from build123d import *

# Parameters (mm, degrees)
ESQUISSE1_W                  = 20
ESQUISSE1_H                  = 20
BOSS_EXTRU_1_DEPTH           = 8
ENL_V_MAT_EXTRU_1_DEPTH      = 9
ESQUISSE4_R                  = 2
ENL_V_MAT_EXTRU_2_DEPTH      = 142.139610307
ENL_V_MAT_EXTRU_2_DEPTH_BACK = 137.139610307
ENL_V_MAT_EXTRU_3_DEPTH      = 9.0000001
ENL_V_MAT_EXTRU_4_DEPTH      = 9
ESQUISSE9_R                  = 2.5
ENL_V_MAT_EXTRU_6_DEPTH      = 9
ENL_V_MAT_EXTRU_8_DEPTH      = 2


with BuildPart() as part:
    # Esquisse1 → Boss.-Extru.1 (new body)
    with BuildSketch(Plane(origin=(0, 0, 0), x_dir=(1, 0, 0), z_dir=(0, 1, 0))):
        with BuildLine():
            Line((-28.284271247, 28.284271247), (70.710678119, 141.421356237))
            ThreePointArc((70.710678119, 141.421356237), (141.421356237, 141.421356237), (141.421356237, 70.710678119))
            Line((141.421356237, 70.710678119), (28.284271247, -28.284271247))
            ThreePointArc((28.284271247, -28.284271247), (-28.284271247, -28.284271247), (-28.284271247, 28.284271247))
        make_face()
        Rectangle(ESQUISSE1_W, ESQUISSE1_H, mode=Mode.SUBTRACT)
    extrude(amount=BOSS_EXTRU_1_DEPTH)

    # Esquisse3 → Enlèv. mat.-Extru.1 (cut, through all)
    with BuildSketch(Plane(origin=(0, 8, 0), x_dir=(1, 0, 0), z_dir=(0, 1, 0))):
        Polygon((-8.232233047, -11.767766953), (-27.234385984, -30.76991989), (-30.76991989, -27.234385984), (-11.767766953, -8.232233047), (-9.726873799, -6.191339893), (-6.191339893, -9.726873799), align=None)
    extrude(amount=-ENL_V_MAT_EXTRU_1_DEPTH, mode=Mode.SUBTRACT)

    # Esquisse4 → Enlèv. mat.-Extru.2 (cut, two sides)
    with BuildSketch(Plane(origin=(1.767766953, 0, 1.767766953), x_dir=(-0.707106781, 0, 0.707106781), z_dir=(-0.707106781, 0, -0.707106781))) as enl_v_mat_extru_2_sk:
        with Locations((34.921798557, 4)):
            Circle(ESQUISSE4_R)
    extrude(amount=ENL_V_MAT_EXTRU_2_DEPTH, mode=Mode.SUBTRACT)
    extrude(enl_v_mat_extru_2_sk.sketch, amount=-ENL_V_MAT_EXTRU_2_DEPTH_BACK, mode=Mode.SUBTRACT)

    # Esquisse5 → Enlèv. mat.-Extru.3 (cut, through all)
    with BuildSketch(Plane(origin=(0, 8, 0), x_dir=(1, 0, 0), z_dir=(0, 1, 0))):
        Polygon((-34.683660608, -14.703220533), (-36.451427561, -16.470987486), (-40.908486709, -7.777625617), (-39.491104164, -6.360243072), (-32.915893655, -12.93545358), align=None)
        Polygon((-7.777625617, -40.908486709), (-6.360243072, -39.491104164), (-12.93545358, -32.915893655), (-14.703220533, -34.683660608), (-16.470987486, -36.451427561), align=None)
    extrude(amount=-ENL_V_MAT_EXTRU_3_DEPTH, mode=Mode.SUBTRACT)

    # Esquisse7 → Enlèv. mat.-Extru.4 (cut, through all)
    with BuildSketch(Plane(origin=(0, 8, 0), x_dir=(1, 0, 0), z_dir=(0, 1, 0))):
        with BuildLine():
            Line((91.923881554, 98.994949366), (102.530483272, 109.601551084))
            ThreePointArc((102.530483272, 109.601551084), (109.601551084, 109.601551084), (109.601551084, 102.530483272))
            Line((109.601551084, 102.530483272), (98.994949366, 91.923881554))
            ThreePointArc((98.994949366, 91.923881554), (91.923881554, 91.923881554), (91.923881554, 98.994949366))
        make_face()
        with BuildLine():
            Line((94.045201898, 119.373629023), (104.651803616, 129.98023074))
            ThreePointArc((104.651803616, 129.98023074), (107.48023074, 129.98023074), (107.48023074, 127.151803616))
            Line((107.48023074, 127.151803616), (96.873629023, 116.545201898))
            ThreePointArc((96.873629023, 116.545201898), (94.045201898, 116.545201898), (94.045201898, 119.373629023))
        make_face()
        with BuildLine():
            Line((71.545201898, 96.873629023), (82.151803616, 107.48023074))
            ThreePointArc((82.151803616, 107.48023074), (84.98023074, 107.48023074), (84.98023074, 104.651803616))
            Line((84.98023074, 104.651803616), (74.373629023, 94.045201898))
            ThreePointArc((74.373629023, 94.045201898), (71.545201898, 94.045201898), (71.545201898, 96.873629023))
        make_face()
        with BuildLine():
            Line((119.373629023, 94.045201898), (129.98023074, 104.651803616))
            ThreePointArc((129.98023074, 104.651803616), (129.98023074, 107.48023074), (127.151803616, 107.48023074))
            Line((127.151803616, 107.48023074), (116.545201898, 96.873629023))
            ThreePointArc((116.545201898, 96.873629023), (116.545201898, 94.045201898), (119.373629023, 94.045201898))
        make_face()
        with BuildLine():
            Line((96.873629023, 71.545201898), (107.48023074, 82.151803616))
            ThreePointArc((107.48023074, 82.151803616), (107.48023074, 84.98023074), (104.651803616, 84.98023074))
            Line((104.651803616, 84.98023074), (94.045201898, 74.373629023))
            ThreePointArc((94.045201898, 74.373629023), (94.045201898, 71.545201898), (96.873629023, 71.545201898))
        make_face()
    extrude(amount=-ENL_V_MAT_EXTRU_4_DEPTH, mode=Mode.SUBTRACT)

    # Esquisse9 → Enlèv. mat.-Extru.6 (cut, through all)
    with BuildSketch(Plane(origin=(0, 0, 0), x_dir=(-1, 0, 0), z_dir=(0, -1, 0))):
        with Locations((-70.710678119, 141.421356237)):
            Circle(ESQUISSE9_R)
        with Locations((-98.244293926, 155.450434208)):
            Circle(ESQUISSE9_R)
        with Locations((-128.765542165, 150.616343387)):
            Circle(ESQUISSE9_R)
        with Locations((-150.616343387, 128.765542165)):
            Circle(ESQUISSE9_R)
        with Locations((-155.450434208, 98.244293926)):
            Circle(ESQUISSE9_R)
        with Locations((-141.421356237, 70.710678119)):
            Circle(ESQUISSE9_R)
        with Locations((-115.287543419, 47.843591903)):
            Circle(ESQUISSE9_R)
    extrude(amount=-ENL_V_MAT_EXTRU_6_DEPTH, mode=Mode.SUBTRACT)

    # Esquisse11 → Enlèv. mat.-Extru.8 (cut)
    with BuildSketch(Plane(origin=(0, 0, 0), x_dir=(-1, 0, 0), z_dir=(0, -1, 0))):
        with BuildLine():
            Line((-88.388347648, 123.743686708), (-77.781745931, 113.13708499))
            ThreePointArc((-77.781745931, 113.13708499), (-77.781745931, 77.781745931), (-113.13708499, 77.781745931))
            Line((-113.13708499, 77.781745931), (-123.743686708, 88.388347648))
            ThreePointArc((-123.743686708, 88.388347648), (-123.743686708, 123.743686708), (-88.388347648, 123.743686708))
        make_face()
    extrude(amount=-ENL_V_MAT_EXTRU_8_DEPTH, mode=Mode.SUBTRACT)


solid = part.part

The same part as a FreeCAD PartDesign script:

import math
import FreeCAD as App
import Part
import Sketcher
from FreeCAD import Vector
Q = App.Units.Quantity

doc = App.newDocument("Part")
body = doc.addObject("PartDesign::Body", "Body")

sketch1 = doc.addObject("Sketcher::SketchObject", "Sketch")
body.addObject(sketch1)
sketch1.AttachmentSupport = (doc.XZ_Plane, [""])
sketch1.MapMode = "FlatFace"
sketch1.addGeometry([
    Part.LineSegment(Vector(71, -141, 0), Vector(-28, -28, 0)),
    Part.ArcOfCircle(Part.Circle(Vector(0, 0, 0), Vector(0, 0, 1), 40), math.radians(45), math.radians(225)),
    Part.LineSegment(Vector(28, 28, 0), Vector(141, -71, 0)),
    Part.ArcOfCircle(Part.Circle(Vector(106, -106, 0), Vector(0, 0, 1), 50), math.radians(-135), math.radians(45)),
    Part.LineSegment(Vector(-10, 10, 0), Vector(-10, -10, 0)),
    Part.LineSegment(Vector(-10, -10, 0), Vector(10, -10, 0)),
    Part.LineSegment(Vector(10, -10, 0), Vector(10, 10, 0)),
    Part.LineSegment(Vector(10, 10, 0), Vector(-10, 10, 0)),
], False)
sketch1.addConstraint([
    Sketcher.Constraint("Coincident", 0, 2, 1, 2),
    Sketcher.Constraint("Coincident", 1, 1, 2, 1),
    Sketcher.Constraint("Coincident", 2, 2, 3, 2),
    Sketcher.Constraint("Coincident", 3, 1, 0, 1),
    Sketcher.Constraint("Coincident", 4, 2, 5, 1),
    Sketcher.Constraint("Coincident", 5, 2, 6, 1),
    Sketcher.Constraint("Coincident", 6, 2, 7, 1),
    Sketcher.Constraint("Coincident", 7, 2, 4, 1),
    Sketcher.Constraint("Vertical", 4),
    Sketcher.Constraint("Horizontal", 5),
    Sketcher.Constraint("Vertical", 6),
    Sketcher.Constraint("Horizontal", 7),
    Sketcher.Constraint("Coincident", 1, 3, -1, 1),
    Sketcher.Constraint("Symmetric", 4, 2, 6, 2, -1, 1),
    Sketcher.Constraint("Equal", 7, 4),
    Sketcher.Constraint("Equal", 0, 2),
    Sketcher.Constraint("Radius", 1, Q("40 mm")),
    Sketcher.Constraint("Radius", 3, Q("50 mm")),
    Sketcher.Constraint("DistanceX", 5, 1, 5, 2, Q("20 mm")),
    Sketcher.Constraint("DistanceX", 0, 2, -1, 1, Q("28.284271 mm")),
    Sketcher.Constraint("DistanceX", -1, 1, 1, 1, Q("28.284271 mm")),
    Sketcher.Constraint("DistanceY", 2, 2, -1, 1, Q("70.710678 mm")),
    Sketcher.Constraint("DistanceX", -1, 1, 3, 1, Q("70.710678 mm")),
    Sketcher.Constraint("DistanceX", 0, 2, 3, 3, Q("134.350288 mm")),
])
pad1 = doc.addObject("PartDesign::Pad", "Pad")
body.addObject(pad1)
pad1.Profile = sketch1
pad1.Length = 8
pad1.Reversed = True

sketch2 = doc.addObject("Sketcher::SketchObject", "Sketch001")
body.addObject(sketch2)
sketch2.AttachmentSupport = (doc.XZ_Plane, [""])
sketch2.MapMode = "FlatFace"
sketch2.AttachmentOffset = App.Placement(Vector(0, 0, -8), App.Rotation())
sketch2.addGeometry([
    Part.LineSegment(Vector(-27, 31, 0), Vector(-6, 10, 0)),
    Part.LineSegment(Vector(-6, 10, 0), Vector(-10, 6, 0)),
    Part.LineSegment(Vector(-10, 6, 0), Vector(-31, 27, 0)),
    Part.LineSegment(Vector(-31, 27, 0), Vector(-27, 31, 0)),
], False)
sketch2.addConstraint([
    Sketcher.Constraint("Coincident", 0, 2, 1, 1),
    Sketcher.Constraint("Coincident", 1, 2, 2, 1),
    Sketcher.Constraint("Coincident", 2, 2, 3, 1),
    Sketcher.Constraint("Coincident", 3, 2, 0, 1),
    Sketcher.Constraint("Perpendicular", 0, 1),
    Sketcher.Constraint("Perpendicular", 1, 2),
    Sketcher.Constraint("Perpendicular", 2, 3),
    Sketcher.Constraint("Angle", 0, Q("-45 deg")),
    Sketcher.Constraint("Distance", 1, Q("5 mm")),
    Sketcher.Constraint("Distance", 0, Q("29.759361 mm")),
    Sketcher.Constraint("DistanceX", 0, 2, -1, 1, Q("6.19134 mm")),
    Sketcher.Constraint("DistanceY", -1, 1, 1, 2, Q("6.19134 mm")),
])
pocket1 = doc.addObject("PartDesign::Pocket", "Pocket")
body.addObject(pocket1)
pocket1.Profile = sketch2
pocket1.Type = "ThroughAll"
pocket1.Reversed = True

sketch3 = doc.addObject("Sketcher::SketchObject", "Sketch002")
body.addObject(sketch3)
sketch3.Placement = App.Placement(Vector(1.767767, 0, 1.767767), App.Rotation(Vector(-0.707106781, 0, 0.707106781), Vector(0, 0.999999999, 0), Vector(-0.707106781, 0, -0.707106781), "ZXY"))
sketch3.addGeometry(Part.Circle(Vector(34.9, 4, 0), Vector(0, 0, 1), 2), False)
sketch3.addConstraint([
    Sketcher.Constraint("Diameter", 0, Q("4 mm")),
    Sketcher.Constraint("DistanceY", -1, 1, 0, 3, Q("4 mm")),
    Sketcher.Constraint("DistanceX", -1, 1, 0, 3, Q("34.921799 mm")),
])
pocket2 = doc.addObject("PartDesign::Pocket", "Pocket001")
body.addObject(pocket2)
pocket2.Profile = sketch3
pocket2.Type = "ThroughAll"
pocket2.Midplane = True

sketch4 = doc.addObject("Sketcher::SketchObject", "Sketch003")
body.addObject(sketch4)
sketch4.AttachmentSupport = (doc.XZ_Plane, [""])
sketch4.MapMode = "FlatFace"
sketch4.AttachmentOffset = App.Placement(Vector(0, 0, -8), App.Rotation())
sketch4.addGeometry([
    Part.LineSegment(Vector(-36.5, 16.5, 0), Vector(-32.9, 12.9, 0)),
    Part.LineSegment(Vector(-32.9, 12.9, 0), Vector(-39.5, 6.4, 0)),
    Part.LineSegment(Vector(-39.5, 6.4, 0), Vector(-40.9, 7.8, 0)),
    Part.LineSegment(Vector(-40.9, 7.8, 0), Vector(-36.5, 16.5, 0)),
    Part.LineSegment(Vector(-7.8, 40.9, 0), Vector(-6.4, 39.5, 0)),
    Part.LineSegment(Vector(-6.4, 39.5, 0), Vector(-12.9, 32.9, 0)),
    Part.LineSegment(Vector(-12.9, 32.9, 0), Vector(-16.5, 36.5, 0)),
    Part.LineSegment(Vector(-16.5, 36.5, 0), Vector(-7.8, 40.9, 0)),
], False)
sketch4.addConstraint([
    Sketcher.Constraint("Coincident", 0, 2, 1, 1),
    Sketcher.Constraint("Coincident", 1, 2, 2, 1),
    Sketcher.Constraint("Coincident", 2, 2, 3, 1),
    Sketcher.Constraint("Coincident", 3, 2, 0, 1),
    Sketcher.Constraint("Coincident", 4, 2, 5, 1),
    Sketcher.Constraint("Coincident", 5, 2, 6, 1),
    Sketcher.Constraint("Coincident", 6, 2, 7, 1),
    Sketcher.Constraint("Coincident", 7, 2, 4, 1),
    Sketcher.Constraint("Perpendicular", 0, 1),
    Sketcher.Constraint("Perpendicular", 1, 2),
    Sketcher.Constraint("Parallel", 2, 4),
    Sketcher.Constraint("Perpendicular", 4, 5),
    Sketcher.Constraint("Perpendicular", 5, 6),
    Sketcher.Constraint("Equal", 2, 4),
    Sketcher.Constraint("Equal", 1, 5),
    Sketcher.Constraint("Equal", 0, 6),
    Sketcher.Constraint("Angle", 0, Q("-45 deg")),
    Sketcher.Constraint("Distance", 0, Q("5 mm")),
    Sketcher.Constraint("DistanceX", 2, 2, 6, 2, Q("24.437499 mm")),
    Sketcher.Constraint("DistanceY", 2, 2, 6, 2, Q("28.673802 mm")),
    Sketcher.Constraint("DistanceX", 3, 2, 7, 2, Q("28.673802 mm")),
    Sketcher.Constraint("Distance", 1, Q("9.298752 mm")),
    Sketcher.Constraint("DistanceX", 0, 2, -1, 1, Q("32.915894 mm")),
    Sketcher.Constraint("DistanceY", -1, 1, 0, 2, Q("12.935454 mm")),
])
pocket3 = doc.addObject("PartDesign::Pocket", "Pocket002")
body.addObject(pocket3)
pocket3.Profile = sketch4
pocket3.Type = "ThroughAll"
pocket3.Reversed = True

sketch5 = doc.addObject("Sketcher::SketchObject", "Sketch004")
body.addObject(sketch5)
sketch5.AttachmentSupport = (doc.XZ_Plane, [""])
sketch5.MapMode = "FlatFace"
sketch5.AttachmentOffset = App.Placement(Vector(0, 0, -8), App.Rotation())
sketch5.addGeometry([
    Part.LineSegment(Vector(102.5, -109.6, 0), Vector(91.9, -99, 0)),
    Part.ArcOfCircle(Part.Circle(Vector(95.5, -95.5, 0), Vector(0, 0, 1), 5), math.radians(45), math.radians(225)),
    Part.LineSegment(Vector(99, -91.9, 0), Vector(109.6, -102.5, 0)),
    Part.ArcOfCircle(Part.Circle(Vector(106.1, -106.1, 0), Vector(0, 0, 1), 5), math.radians(-135), math.radians(45)),
    Part.LineSegment(Vector(104.7, -130, 0), Vector(94, -119.4, 0)),
    Part.ArcOfCircle(Part.Circle(Vector(95.5, -118, 0), Vector(0, 0, 1), 2), math.radians(45), math.radians(225)),
    Part.LineSegment(Vector(96.9, -116.5, 0), Vector(107.5, -127.2, 0)),
    Part.ArcOfCircle(Part.Circle(Vector(106.1, -128.6, 0), Vector(0, 0, 1), 2), math.radians(-135), math.radians(45)),
    Part.LineSegment(Vector(82.2, -107.5, 0), Vector(71.5, -96.9, 0)),
    Part.ArcOfCircle(Part.Circle(Vector(73, -95.5, 0), Vector(0, 0, 1), 2), math.radians(45), math.radians(225)),
    Part.LineSegment(Vector(74.4, -94, 0), Vector(85, -104.7, 0)),
    Part.ArcOfCircle(Part.Circle(Vector(83.6, -106.1, 0), Vector(0, 0, 1), 2), math.radians(-135), math.radians(45)),
    Part.LineSegment(Vector(119.4, -94, 0), Vector(130, -104.7, 0)),
    Part.ArcOfCircle(Part.Circle(Vector(128.6, -106.1, 0), Vector(0, 0, 1), 2), math.radians(-135), math.radians(45)),
    Part.LineSegment(Vector(127.2, -107.5, 0), Vector(116.5, -96.9, 0)),
    Part.ArcOfCircle(Part.Circle(Vector(118, -95.5, 0), Vector(0, 0, 1), 2), math.radians(45), math.radians(225)),
    Part.LineSegment(Vector(96.9, -71.5, 0), Vector(107.5, -82.2, 0)),
    Part.ArcOfCircle(Part.Circle(Vector(106.1, -83.6, 0), Vector(0, 0, 1), 2), math.radians(-135), math.radians(45)),
    Part.LineSegment(Vector(104.7, -85, 0), Vector(94, -74.4, 0)),
    Part.ArcOfCircle(Part.Circle(Vector(95.5, -73, 0), Vector(0, 0, 1), 2), math.radians(45), math.radians(225)),
], False)
sketch5.addConstraint([
    Sketcher.Constraint("Tangent", 0, 2, 1, 2),
    Sketcher.Constraint("Tangent", 1, 1, 2, 1),
    Sketcher.Constraint("Tangent", 2, 2, 3, 2),
    Sketcher.Constraint("Tangent", 3, 1, 0, 1),
    Sketcher.Constraint("Tangent", 4, 2, 5, 2),
    Sketcher.Constraint("Tangent", 5, 1, 6, 1),
    Sketcher.Constraint("Tangent", 6, 2, 7, 2),
    Sketcher.Constraint("Tangent", 7, 1, 4, 1),
    Sketcher.Constraint("Tangent", 8, 2, 9, 2),
    Sketcher.Constraint("Tangent", 9, 1, 10, 1),
    Sketcher.Constraint("Tangent", 10, 2, 11, 2),
    Sketcher.Constraint("Tangent", 11, 1, 8, 1),
    Sketcher.Constraint("Tangent", 12, 2, 13, 2),
    Sketcher.Constraint("Tangent", 13, 1, 14, 1),
    Sketcher.Constraint("Tangent", 14, 2, 15, 2),
    Sketcher.Constraint("Tangent", 15, 1, 12, 1),
    Sketcher.Constraint("Tangent", 16, 2, 17, 2),
    Sketcher.Constraint("Tangent", 17, 1, 18, 1),
    Sketcher.Constraint("Tangent", 18, 2, 19, 2),
    Sketcher.Constraint("Tangent", 19, 1, 16, 1),
    Sketcher.Constraint("Equal", 1, 3),
    Sketcher.Constraint("Equal", 5, 7),
    Sketcher.Constraint("Equal", 7, 9),
    Sketcher.Constraint("Equal", 9, 11),
    Sketcher.Constraint("Equal", 11, 13),
    Sketcher.Constraint("Equal", 13, 15),
    Sketcher.Constraint("Equal", 15, 17),
    Sketcher.Constraint("Equal", 17, 19),
    Sketcher.Constraint("Parallel", 2, 4),
    Sketcher.Constraint("Parallel", 6, 8),
    Sketcher.Constraint("Parallel", 10, 12),
    Sketcher.Constraint("Parallel", 14, 16),
    Sketcher.Constraint("Horizontal", 1, 3, 9, 3),
    Sketcher.Constraint("Horizontal", 3, 3, 11, 3),
    Sketcher.Constraint("Horizontal", 11, 3, 13, 3),
    Sketcher.Constraint("Horizontal", 9, 3, 15, 3),
    Sketcher.Constraint("Vertical", 1, 3, 5, 3),
    Sketcher.Constraint("Vertical", 3, 3, 7, 3),
    Sketcher.Constraint("Vertical", 7, 3, 17, 3),
    Sketcher.Constraint("Vertical", 5, 3, 19, 3),
    Sketcher.Constraint("Radius", 1, Q("5 mm")),
    Sketcher.Constraint("Radius", 5, Q("2 mm")),
    Sketcher.Constraint("Angle", 0, Q("135 deg")),
    Sketcher.Constraint("Distance", 0, Q("15 mm")),
    Sketcher.Constraint("DistanceX", 11, 3, 13, 3, Q("45 mm")),
    Sketcher.Constraint("DistanceY", 5, 3, 1, 3, Q("22.5 mm")),
    Sketcher.Constraint("DistanceX", 9, 3, 1, 3, Q("22.5 mm")),
    Sketcher.Constraint("DistanceY", 3, 3, 17, 3, Q("22.5 mm")),
    Sketcher.Constraint("DistanceX", -1, 1, 4, 2, Q("94.045202 mm")),
    Sketcher.Constraint("DistanceY", 5, 1, -1, 1, Q("116.545202 mm")),
])
pocket4 = doc.addObject("PartDesign::Pocket", "Pocket003")
body.addObject(pocket4)
pocket4.Profile = sketch5
pocket4.Type = "ThroughAll"
pocket4.Reversed = True

sketch6 = doc.addObject("Sketcher::SketchObject", "Sketch005")
body.addObject(sketch6)
sketch6.AttachmentSupport = (doc.XZ_Plane, [""])
sketch6.MapMode = "FlatFace"
sketch6.addGeometry([
    Part.Circle(Vector(70.7, -141.4, 0), Vector(0, 0, 1), 2.5),
    Part.Circle(Vector(98.2, -155.5, 0), Vector(0, 0, 1), 2.5),
    Part.Circle(Vector(128.8, -150.6, 0), Vector(0, 0, 1), 2.5),
    Part.Circle(Vector(150.6, -128.8, 0), Vector(0, 0, 1), 2.5),
    Part.Circle(Vector(155.5, -98.2, 0), Vector(0, 0, 1), 2.5),
    Part.Circle(Vector(141.4, -70.7, 0), Vector(0, 0, 1), 2.5),
    Part.Circle(Vector(115.3, -47.8, 0), Vector(0, 0, 1), 2.5),
], False)
sketch6.addConstraint([
    Sketcher.Constraint("Equal", 0, 1),
    Sketcher.Constraint("Equal", 1, 2),
    Sketcher.Constraint("Equal", 2, 3),
    Sketcher.Constraint("Equal", 3, 4),
    Sketcher.Constraint("Equal", 4, 5),
    Sketcher.Constraint("Equal", 5, 6),
    Sketcher.Constraint("Diameter", 0, Q("5 mm")),
    Sketcher.Constraint("DistanceX", 6, 3, 2, 3, Q("13.477999 mm")),
    Sketcher.Constraint("DistanceX", 2, 3, 3, 3, Q("21.850801 mm")),
    Sketcher.Constraint("DistanceY", 2, 3, 3, 3, Q("21.850801 mm")),
    Sketcher.Constraint("DistanceX", -1, 1, 0, 3, Q("70.710678 mm")),
    Sketcher.Constraint("DistanceY", 5, 3, -1, 1, Q("70.710678 mm")),
    Sketcher.Constraint("DistanceY", 6, 3, -1, 1, Q("47.843592 mm")),
    Sketcher.Constraint("DistanceX", 1, 3, 2, 3, Q("30.521248 mm")),
    Sketcher.Constraint("DistanceY", 1, 3, 2, 3, Q("4.834091 mm")),
    Sketcher.Constraint("DistanceX", 3, 3, 4, 3, Q("4.834091 mm")),
    Sketcher.Constraint("DistanceY", 3, 3, 4, 3, Q("30.521248 mm")),
    Sketcher.Constraint("DistanceX", 0, 3, 5, 3, Q("70.710678 mm")),
    Sketcher.Constraint("DistanceY", 0, 3, 5, 3, Q("70.710678 mm")),
    Sketcher.Constraint("DistanceY", 3, 3, 6, 3, Q("80.92195 mm")),
    Sketcher.Constraint("DistanceX", -1, 1, 1, 3, Q("98.244294 mm")),
])
pocket5 = doc.addObject("PartDesign::Pocket", "Pocket004")
body.addObject(pocket5)
pocket5.Profile = sketch6
pocket5.Type = "ThroughAll"

sketch7 = doc.addObject("Sketcher::SketchObject", "Sketch006")
body.addObject(sketch7)
sketch7.AttachmentSupport = (doc.XZ_Plane, [""])
sketch7.MapMode = "FlatFace"
sketch7.addGeometry([
    Part.LineSegment(Vector(78, -113, 0), Vector(88, -124, 0)),
    Part.ArcOfCircle(Part.Circle(Vector(106, -106, 0), Vector(0, 0, 1), 25), math.radians(-135), math.radians(45)),
    Part.LineSegment(Vector(124, -88, 0), Vector(113, -78, 0)),
    Part.ArcOfCircle(Part.Circle(Vector(95, -95, 0), Vector(0, 0, 1), 25), math.radians(45), math.radians(225)),
], False)
sketch7.addConstraint([
    Sketcher.Constraint("Tangent", 0, 2, 1, 1),
    Sketcher.Constraint("Tangent", 1, 2, 2, 1),
    Sketcher.Constraint("Tangent", 2, 2, 3, 1),
    Sketcher.Constraint("Tangent", 3, 2, 0, 1),
    Sketcher.Constraint("Equal", 1, 3),
    Sketcher.Constraint("Radius", 1, Q("25 mm")),
    Sketcher.Constraint("Angle", 0, Q("-45 deg")),
    Sketcher.Constraint("Distance", 0, Q("15 mm")),
    Sketcher.Constraint("DistanceX", -1, 1, 1, 3, Q("106.066017 mm")),
    Sketcher.Constraint("DistanceY", 1, 3, -1, 1, Q("106.066017 mm")),
])
pocket6 = doc.addObject("PartDesign::Pocket", "Pocket005")
body.addObject(pocket6)
pocket6.Profile = sketch7
pocket6.Length = 2

doc.recompute()
